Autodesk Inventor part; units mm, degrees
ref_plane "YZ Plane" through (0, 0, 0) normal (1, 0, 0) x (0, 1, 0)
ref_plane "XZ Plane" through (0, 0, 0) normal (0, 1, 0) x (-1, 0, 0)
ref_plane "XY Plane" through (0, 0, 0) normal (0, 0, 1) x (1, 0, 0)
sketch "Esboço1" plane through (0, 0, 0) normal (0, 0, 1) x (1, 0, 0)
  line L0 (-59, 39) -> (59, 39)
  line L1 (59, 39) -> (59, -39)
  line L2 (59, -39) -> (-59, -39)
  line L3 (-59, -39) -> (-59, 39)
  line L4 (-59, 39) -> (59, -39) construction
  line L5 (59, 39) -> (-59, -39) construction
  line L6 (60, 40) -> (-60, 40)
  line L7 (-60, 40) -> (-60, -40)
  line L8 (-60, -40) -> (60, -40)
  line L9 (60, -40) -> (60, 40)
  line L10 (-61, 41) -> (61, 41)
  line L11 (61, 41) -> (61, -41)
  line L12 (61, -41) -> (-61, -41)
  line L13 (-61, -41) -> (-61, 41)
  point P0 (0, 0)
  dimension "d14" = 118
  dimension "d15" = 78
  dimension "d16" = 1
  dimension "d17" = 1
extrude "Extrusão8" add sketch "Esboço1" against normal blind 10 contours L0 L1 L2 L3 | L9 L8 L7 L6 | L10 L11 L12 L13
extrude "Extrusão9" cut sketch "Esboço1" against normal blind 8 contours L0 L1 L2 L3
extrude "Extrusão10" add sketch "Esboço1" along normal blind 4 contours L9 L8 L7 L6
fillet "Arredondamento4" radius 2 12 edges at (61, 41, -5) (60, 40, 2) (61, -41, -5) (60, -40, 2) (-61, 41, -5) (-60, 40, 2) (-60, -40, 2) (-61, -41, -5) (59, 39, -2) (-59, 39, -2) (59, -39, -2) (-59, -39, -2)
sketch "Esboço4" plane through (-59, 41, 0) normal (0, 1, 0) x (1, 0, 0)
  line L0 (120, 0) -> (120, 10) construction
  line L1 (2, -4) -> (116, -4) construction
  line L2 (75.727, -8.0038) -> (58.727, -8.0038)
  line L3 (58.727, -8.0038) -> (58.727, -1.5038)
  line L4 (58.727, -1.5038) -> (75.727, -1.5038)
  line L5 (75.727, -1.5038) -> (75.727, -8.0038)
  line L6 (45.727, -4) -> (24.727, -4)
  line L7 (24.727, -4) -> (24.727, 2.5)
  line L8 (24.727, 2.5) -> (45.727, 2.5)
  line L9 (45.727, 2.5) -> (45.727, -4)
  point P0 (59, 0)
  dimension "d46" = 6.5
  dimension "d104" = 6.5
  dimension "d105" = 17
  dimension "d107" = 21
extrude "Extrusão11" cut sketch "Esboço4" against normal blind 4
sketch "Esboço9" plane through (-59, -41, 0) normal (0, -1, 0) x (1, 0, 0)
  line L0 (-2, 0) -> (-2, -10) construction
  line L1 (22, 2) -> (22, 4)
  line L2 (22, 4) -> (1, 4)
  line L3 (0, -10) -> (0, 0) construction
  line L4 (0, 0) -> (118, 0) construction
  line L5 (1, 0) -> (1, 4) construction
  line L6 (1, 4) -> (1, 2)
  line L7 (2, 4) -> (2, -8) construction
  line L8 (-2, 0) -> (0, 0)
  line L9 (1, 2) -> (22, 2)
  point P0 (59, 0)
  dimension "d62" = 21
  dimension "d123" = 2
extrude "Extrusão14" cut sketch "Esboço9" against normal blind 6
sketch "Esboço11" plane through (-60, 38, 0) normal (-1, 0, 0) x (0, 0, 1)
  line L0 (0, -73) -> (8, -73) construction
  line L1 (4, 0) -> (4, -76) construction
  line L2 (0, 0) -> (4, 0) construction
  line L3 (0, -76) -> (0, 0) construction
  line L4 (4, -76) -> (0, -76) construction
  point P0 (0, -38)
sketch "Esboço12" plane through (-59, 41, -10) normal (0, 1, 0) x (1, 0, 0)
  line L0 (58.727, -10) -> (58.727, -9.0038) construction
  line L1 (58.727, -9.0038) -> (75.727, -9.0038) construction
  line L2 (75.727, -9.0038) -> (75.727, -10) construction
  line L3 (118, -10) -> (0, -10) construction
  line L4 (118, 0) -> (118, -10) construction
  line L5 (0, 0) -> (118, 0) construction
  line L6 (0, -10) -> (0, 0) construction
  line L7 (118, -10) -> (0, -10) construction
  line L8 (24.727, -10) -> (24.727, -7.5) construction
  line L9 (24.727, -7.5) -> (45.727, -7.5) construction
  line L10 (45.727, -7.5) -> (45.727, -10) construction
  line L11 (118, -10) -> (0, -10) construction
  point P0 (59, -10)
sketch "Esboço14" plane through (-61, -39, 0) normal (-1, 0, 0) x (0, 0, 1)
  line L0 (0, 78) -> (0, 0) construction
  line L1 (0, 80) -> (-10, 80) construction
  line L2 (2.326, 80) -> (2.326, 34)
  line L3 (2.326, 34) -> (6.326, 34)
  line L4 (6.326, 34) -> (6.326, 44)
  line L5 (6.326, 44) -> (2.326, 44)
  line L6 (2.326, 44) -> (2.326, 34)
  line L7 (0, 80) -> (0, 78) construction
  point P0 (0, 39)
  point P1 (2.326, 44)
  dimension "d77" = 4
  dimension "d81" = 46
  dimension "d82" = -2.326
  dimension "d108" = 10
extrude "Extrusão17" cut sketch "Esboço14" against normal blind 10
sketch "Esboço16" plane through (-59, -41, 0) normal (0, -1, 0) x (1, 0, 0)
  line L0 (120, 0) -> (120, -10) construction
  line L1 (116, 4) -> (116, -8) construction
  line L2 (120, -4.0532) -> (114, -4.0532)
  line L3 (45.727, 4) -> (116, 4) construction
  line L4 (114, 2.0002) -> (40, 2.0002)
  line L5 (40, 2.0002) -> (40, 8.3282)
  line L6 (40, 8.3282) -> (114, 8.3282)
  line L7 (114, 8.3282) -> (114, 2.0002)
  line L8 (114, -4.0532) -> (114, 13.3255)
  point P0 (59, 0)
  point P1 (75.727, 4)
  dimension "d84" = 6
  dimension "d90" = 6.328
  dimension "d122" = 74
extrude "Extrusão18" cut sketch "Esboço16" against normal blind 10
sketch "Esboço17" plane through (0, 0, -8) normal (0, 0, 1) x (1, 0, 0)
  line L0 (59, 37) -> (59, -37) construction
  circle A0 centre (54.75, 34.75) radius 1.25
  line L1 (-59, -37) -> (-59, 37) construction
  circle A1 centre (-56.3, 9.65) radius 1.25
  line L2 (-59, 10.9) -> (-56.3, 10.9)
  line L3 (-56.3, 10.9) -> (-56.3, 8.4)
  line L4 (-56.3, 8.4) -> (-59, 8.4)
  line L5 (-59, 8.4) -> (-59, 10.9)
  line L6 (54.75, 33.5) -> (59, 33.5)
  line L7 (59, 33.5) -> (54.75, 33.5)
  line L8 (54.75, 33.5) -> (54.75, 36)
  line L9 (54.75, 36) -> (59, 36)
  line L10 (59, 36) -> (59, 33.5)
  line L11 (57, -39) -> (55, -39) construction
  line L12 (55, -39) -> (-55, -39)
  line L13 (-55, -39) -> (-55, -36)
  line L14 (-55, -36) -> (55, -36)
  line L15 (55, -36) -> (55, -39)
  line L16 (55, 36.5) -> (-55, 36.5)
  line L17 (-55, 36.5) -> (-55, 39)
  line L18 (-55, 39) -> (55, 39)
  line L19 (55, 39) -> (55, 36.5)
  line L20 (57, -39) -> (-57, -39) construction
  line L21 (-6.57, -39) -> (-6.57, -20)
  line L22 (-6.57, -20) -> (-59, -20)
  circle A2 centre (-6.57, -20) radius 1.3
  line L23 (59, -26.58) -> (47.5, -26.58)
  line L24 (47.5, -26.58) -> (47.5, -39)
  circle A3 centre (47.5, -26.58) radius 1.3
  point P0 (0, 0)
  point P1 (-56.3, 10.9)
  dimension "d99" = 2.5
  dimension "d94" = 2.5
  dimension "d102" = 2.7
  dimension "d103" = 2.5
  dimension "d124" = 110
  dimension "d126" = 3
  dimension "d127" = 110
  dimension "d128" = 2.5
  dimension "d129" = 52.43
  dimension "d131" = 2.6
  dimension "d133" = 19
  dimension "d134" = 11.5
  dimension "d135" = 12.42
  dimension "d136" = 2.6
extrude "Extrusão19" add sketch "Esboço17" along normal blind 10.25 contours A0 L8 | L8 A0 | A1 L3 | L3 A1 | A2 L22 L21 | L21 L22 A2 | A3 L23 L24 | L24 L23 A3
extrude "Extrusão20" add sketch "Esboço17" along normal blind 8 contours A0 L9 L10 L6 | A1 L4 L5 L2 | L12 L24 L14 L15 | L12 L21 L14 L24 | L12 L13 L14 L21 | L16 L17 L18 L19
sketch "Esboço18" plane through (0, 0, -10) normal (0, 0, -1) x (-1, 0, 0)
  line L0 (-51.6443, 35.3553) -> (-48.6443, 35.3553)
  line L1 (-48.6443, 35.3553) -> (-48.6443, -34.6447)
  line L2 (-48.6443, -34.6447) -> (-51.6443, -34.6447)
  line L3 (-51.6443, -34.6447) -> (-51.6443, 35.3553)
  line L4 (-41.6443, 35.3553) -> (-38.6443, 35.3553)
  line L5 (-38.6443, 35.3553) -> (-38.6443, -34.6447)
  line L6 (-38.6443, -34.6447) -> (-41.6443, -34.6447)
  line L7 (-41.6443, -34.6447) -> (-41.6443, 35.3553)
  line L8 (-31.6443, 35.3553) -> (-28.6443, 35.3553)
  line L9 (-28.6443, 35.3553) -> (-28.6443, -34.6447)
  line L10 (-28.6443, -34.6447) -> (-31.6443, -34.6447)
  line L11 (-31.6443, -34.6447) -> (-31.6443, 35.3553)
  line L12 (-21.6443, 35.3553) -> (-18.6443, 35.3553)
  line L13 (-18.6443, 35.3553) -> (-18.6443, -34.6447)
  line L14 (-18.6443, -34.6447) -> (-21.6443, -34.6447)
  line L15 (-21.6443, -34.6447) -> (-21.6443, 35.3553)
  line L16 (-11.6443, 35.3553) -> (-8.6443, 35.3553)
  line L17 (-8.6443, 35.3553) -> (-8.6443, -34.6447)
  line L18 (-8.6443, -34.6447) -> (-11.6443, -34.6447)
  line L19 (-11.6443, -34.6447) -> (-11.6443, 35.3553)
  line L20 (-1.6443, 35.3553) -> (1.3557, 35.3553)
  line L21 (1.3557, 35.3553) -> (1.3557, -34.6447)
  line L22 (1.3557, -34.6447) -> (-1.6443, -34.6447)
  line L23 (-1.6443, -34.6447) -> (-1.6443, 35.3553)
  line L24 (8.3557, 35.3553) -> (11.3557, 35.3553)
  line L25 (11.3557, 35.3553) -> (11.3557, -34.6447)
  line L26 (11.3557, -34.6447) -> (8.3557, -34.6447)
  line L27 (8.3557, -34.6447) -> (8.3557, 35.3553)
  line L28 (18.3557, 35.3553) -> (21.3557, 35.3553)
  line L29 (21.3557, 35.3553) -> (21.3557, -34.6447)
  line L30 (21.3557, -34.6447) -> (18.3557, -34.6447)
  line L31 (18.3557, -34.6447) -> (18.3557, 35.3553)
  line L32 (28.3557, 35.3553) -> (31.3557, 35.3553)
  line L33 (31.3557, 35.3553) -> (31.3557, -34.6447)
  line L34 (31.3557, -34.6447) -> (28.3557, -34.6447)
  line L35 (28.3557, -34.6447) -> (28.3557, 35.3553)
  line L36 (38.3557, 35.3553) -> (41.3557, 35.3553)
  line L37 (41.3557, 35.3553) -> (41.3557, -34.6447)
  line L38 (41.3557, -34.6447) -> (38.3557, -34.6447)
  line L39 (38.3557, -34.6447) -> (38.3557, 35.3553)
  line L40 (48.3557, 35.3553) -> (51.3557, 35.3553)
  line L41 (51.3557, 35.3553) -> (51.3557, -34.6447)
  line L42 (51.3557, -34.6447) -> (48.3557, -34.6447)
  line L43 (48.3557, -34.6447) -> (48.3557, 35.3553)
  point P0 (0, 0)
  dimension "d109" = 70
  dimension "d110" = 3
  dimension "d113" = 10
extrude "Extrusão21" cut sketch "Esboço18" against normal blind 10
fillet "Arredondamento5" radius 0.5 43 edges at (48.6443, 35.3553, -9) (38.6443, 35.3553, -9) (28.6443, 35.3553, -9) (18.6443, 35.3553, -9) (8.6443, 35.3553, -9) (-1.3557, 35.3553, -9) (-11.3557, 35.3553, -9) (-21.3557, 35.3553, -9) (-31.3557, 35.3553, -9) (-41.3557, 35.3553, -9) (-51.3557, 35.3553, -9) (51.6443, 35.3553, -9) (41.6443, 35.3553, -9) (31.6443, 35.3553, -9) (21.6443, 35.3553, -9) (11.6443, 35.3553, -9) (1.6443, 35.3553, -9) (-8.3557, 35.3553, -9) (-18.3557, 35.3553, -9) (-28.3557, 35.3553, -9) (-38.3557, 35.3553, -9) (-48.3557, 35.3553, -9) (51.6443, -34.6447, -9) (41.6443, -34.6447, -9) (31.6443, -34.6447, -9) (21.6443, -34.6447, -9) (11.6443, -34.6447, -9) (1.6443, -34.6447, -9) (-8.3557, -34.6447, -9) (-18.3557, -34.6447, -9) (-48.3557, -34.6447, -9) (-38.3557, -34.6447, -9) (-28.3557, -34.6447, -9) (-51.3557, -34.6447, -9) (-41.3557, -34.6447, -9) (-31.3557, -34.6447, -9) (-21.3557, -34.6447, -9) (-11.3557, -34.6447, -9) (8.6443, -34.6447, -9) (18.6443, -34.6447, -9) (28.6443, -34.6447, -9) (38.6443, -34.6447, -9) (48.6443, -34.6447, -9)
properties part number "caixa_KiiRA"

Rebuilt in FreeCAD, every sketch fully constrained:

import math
import FreeCAD as App
import Part
import Sketcher

V = App.Vector


def edges_at(feature, points):
    """Names of the edges that pass closest to the given points."""
    edges = feature.Shape.Edges
    near = lambda p: min(range(len(edges)), key=lambda i: edges[i].distToShape(Part.Vertex(*p))[0])
    return sorted({f"Edge{near(p) + 1}" for p in points})


def add_polygon(sketch, points):
    """Adds a closed chain of lines whose ends are joined by coincident constraints."""
    first, n = sketch.GeometryCount, len(points)
    for a, b in zip(points, points[1:] + points[:1]):
        sketch.addGeometry(Part.LineSegment(App.Vector(*a, 0), App.Vector(*b, 0)), False)
    for i in range(n):
        sketch.addConstraint(Sketcher.Constraint("Coincident", first + i, 2, first + (i + 1) % n, 1))

doc = App.newDocument("Part")
body = doc.addObject("PartDesign::Body", "Body")

sketch1 = body.newObject("Sketcher::SketchObject", "Sketch")
sketch1.AttachmentSupport = (doc.getObject("XY_Plane"), [""])
sketch1.MapMode = "FlatFace"
add_polygon(sketch1, [(61, 41), (-61, 41), (-61, -41), (61, -41)])
sketch1.addConstraint(Sketcher.Constraint("Horizontal", 0))
sketch1.addConstraint(Sketcher.Constraint("Vertical", 1))
sketch1.addConstraint(Sketcher.Constraint("Horizontal", 2))
sketch1.addConstraint(Sketcher.Constraint("Vertical", 3))
sketch1.addConstraint(Sketcher.Constraint("Symmetric", 0, 2, 2, 2, -1, 1))
sketch1.addConstraint(Sketcher.Constraint("DistanceX", 0, 2, 0, 1, 122.0))
sketch1.addConstraint(Sketcher.Constraint("DistanceY", 1, 2, 1, 1, 82.0))
pad1 = body.newObject("PartDesign::Pad", "Pad")
pad1.Profile = sketch1
pad1.Length = 10
pad1.Reversed = True

sketch2 = body.newObject("Sketcher::SketchObject", "Sketch001")
sketch2.AttachmentSupport = (doc.getObject("XY_Plane"), [""])
sketch2.MapMode = "FlatFace"
add_polygon(sketch2, [(59, 39), (-59, 39), (-59, -39), (59, -39)])
sketch2.addConstraint(Sketcher.Constraint("Horizontal", 0))
sketch2.addConstraint(Sketcher.Constraint("Vertical", 1))
sketch2.addConstraint(Sketcher.Constraint("Horizontal", 2))
sketch2.addConstraint(Sketcher.Constraint("Vertical", 3))
sketch2.addConstraint(Sketcher.Constraint("Symmetric", 0, 2, 2, 2, -1, 1))
sketch2.addConstraint(Sketcher.Constraint("DistanceX", 0, 2, 0, 1, 118.0))
sketch2.addConstraint(Sketcher.Constraint("DistanceY", 1, 2, 1, 1, 78.0))
pocket1 = body.newObject("PartDesign::Pocket", "Pocket")
pocket1.Profile = sketch2
pocket1.Length = 8

sketch3 = body.newObject("Sketcher::SketchObject", "Sketch002")
sketch3.AttachmentSupport = (doc.getObject("XY_Plane"), [""])
sketch3.MapMode = "FlatFace"
add_polygon(sketch3, [(60, -40), (60, 40), (-60, 40), (-60, -40)])
add_polygon(sketch3, [(-59, -39), (-59, 39), (59, 39), (59, -39)])
sketch3.addConstraint(Sketcher.Constraint("Vertical", 0))
sketch3.addConstraint(Sketcher.Constraint("Horizontal", 1))
sketch3.addConstraint(Sketcher.Constraint("Vertical", 2))
sketch3.addConstraint(Sketcher.Constraint("Horizontal", 3))
sketch3.addConstraint(Sketcher.Constraint("Vertical", 4))
sketch3.addConstraint(Sketcher.Constraint("Horizontal", 5))
sketch3.addConstraint(Sketcher.Constraint("Vertical", 6))
sketch3.addConstraint(Sketcher.Constraint("Horizontal", 7))
sketch3.addConstraint(Sketcher.Constraint("Symmetric", 0, 2, 2, 2, -1, 1))
sketch3.addConstraint(Sketcher.Constraint("Symmetric", 4, 2, 6, 2, -1, 1))
sketch3.addConstraint(Sketcher.Constraint("DistanceX", 5, 1, 5, 2, 118.0))
sketch3.addConstraint(Sketcher.Constraint("DistanceY", 4, 1, 4, 2, 78.0))
sketch3.addConstraint(Sketcher.Constraint("DistanceX", 1, 2, 4, 2, 1.0))
sketch3.addConstraint(Sketcher.Constraint("DistanceY", 4, 2, 1, 2, 1.0))
pad2 = body.newObject("PartDesign::Pad", "Pad001")
pad2.Profile = sketch3
pad2.Length = 4
doc.recompute()

fillet = body.newObject("PartDesign::Fillet", "Fillet")
fillet.Base = (pad2, edges_at(pad2, [
    (61, 41, -5),
    (60, 40, 2),
    (61, -41, -5),
    (60, -40, 2),
    (-61, 41, -5),
    (-60, 40, 2),
    (-60, -40, 2),
    (-61, -41, -5),
    (59, 39, -2),
    (-59, 39, -2),
    (59, -39, -2),
    (-59, -39, -2),
]))
fillet.Radius = 2

sketch4 = body.newObject("Sketcher::SketchObject", "Sketch003")
sketch4.AttachmentSupport = (doc.getObject("XZ_Plane"), [""])
sketch4.MapMode = "FlatFace"
sketch4.AttachmentOffset = App.Placement(V(0, 0, -41), App.Rotation())
add_polygon(sketch4, [(0, 8), (17, 8), (17, 2), (0, 2)])
add_polygon(sketch4, [(-34, 4), (-13, 4), (-13, -2), (-34, -2)])
sketch4.addConstraint(Sketcher.Constraint("Horizontal", 0))
sketch4.addConstraint(Sketcher.Constraint("Vertical", 1))
sketch4.addConstraint(Sketcher.Constraint("Horizontal", 2))
sketch4.addConstraint(Sketcher.Constraint("Vertical", 3))
sketch4.addConstraint(Sketcher.Constraint("Horizontal", 4))
sketch4.addConstraint(Sketcher.Constraint("Vertical", 5))
sketch4.addConstraint(Sketcher.Constraint("Horizontal", 6))
sketch4.addConstraint(Sketcher.Constraint("Vertical", 7))
sketch4.addConstraint(Sketcher.Constraint("Equal", 3, 5))
sketch4.addConstraint(Sketcher.Constraint("DistanceX", 0, 1, 0, 2, 17.0))
sketch4.addConstraint(Sketcher.Constraint("DistanceX", 4, 1, 4, 2, 21.0))
sketch4.addConstraint(Sketcher.Constraint("DistanceY", 1, 2, 1, 1, 6.5))
sketch4.addConstraint(Sketcher.Constraint("DistanceY", -1, 1, 4, 2, 4.0))
sketch4.addConstraint(Sketcher.Constraint("DistanceX", 4, 2, 2, 2, 13.0))
sketch4.addConstraint(Sketcher.Constraint("DistanceX", -1, 1, 0, 2, 16.727))
sketch4.addConstraint(Sketcher.Constraint("DistanceY", -1, 1, 0, 2, 8.0038))
pocket2 = body.newObject("PartDesign::Pocket", "Pocket001")
pocket2.Profile = sketch4
pocket2.Length = 4
pocket2.Reversed = True

sketch5 = body.newObject("Sketcher::SketchObject", "Sketch004")
sketch5.AttachmentSupport = (doc.getObject("XZ_Plane"), [""])
sketch5.MapMode = "FlatFace"
sketch5.AttachmentOffset = App.Placement(V(0, 0, 41), App.Rotation())
add_polygon(sketch5, [(-58, 2), (-37, 2), (-37, 4), (-58, 4)])
sketch5.addConstraint(Sketcher.Constraint("Horizontal", 0))
sketch5.addConstraint(Sketcher.Constraint("Vertical", 1))
sketch5.addConstraint(Sketcher.Constraint("Horizontal", 2))
sketch5.addConstraint(Sketcher.Constraint("Vertical", 3))
sketch5.addConstraint(Sketcher.Constraint("DistanceX", 0, 1, 0, 2, 21.0))
sketch5.addConstraint(Sketcher.Constraint("DistanceY", 1, 1, 1, 2, 2.0))
sketch5.addConstraint(Sketcher.Constraint("DistanceY", -1, 1, 0, 2, 2.0))
sketch5.addConstraint(Sketcher.Constraint("DistanceX", 0, 2, -1, 1, 37.0))
pocket3 = body.newObject("PartDesign::Pocket", "Pocket002")
pocket3.Profile = sketch5
pocket3.Length = 6

sketch6 = body.newObject("Sketcher::SketchObject", "Sketch005")
sketch6.AttachmentSupport = (doc.getObject("YZ_Plane"), [""])
sketch6.MapMode = "FlatFace"
sketch6.AttachmentOffset = App.Placement(V(0, 0, -61), App.Rotation())
add_polygon(sketch6, [(5, 6.3), (5, 2.3), (-5, 2.3), (-5, 6.3)])
sketch6.addConstraint(Sketcher.Constraint("Vertical", 0))
sketch6.addConstraint(Sketcher.Constraint("Horizontal", 1))
sketch6.addConstraint(Sketcher.Constraint("Vertical", 2))
sketch6.addConstraint(Sketcher.Constraint("Horizontal", 3))
sketch6.addConstraint(Sketcher.Constraint("DistanceX", 1, 2, 1, 1, 10.0))
sketch6.addConstraint(Sketcher.Constraint("DistanceY", 0, 2, 0, 1, 4.0))
sketch6.addConstraint(Sketcher.Constraint("DistanceY", -1, 1, 0, 2, 2.326))
sketch6.addConstraint(Sketcher.Constraint("DistanceX", -1, 1, 0, 2, 5.0))
pocket4 = body.newObject("PartDesign::Pocket", "Pocket003")
pocket4.Profile = sketch6
pocket4.Length = 10
pocket4.Reversed = True

sketch7 = body.newObject("Sketcher::SketchObject", "Sketch006")
sketch7.AttachmentSupport = (doc.getObject("XZ_Plane"), [""])
sketch7.MapMode = "FlatFace"
sketch7.AttachmentOffset = App.Placement(V(0, 0, 41), App.Rotation())
add_polygon(sketch7, [(-19, 2), (55, 2), (55, 8), (-19, 8)])
sketch7.addConstraint(Sketcher.Constraint("Horizontal", 0))
sketch7.addConstraint(Sketcher.Constraint("Vertical", 1))
sketch7.addConstraint(Sketcher.Constraint("Horizontal", 2))
sketch7.addConstraint(Sketcher.Constraint("Vertical", 3))
sketch7.addConstraint(Sketcher.Constraint("DistanceX", 0, 1, 0, 2, 74.0))
sketch7.addConstraint(Sketcher.Constraint("DistanceY", 1, 1, 1, 2, 6.328))
sketch7.addConstraint(Sketcher.Constraint("DistanceX", -1, 1, 0, 2, 55.0))
sketch7.addConstraint(Sketcher.Constraint("DistanceY", -1, 1, 0, 2, 2.0002))
pocket5 = body.newObject("PartDesign::Pocket", "Pocket004")
pocket5.Profile = sketch7
pocket5.Length = 10

sketch8 = body.newObject("Sketcher::SketchObject", "Sketch007")
sketch8.AttachmentSupport = (doc.getObject("XY_Plane"), [""])
sketch8.MapMode = "FlatFace"
sketch8.AttachmentOffset = App.Placement(V(0, 0, -8), App.Rotation())
sketch8.addGeometry(Part.Circle(V(54.8, 34.8, 0), V(0, 0, 1), 1.2), False)
sketch8.addGeometry(Part.Circle(V(-56.3, 9.7, 0), V(0, 0, 1), 1.2), False)
sketch8.addGeometry(Part.Circle(V(-6.6, -20, 0), V(0, 0, 1), 1.3), False)
sketch8.addGeometry(Part.Circle(V(47.5, -26.6, 0), V(0, 0, 1), 1.3), False)
sketch8.addConstraint(Sketcher.Constraint("Equal", 0, 1))
sketch8.addConstraint(Sketcher.Constraint("Equal", 2, 3))
sketch8.addConstraint(Sketcher.Constraint("Diameter", 0, 2.5))
sketch8.addConstraint(Sketcher.Constraint("Diameter", 2, 2.6))
sketch8.addConstraint(Sketcher.Constraint("DistanceY", 2, 3, -1, 1, 20.0))
sketch8.addConstraint(Sketcher.Constraint("DistanceX", 1, 3, -1, 1, 56.3))
sketch8.addConstraint(Sketcher.Constraint("DistanceX", -1, 1, 3, 3, 47.5))
sketch8.addConstraint(Sketcher.Constraint("DistanceY", 1, 3, 0, 3, 25.1))
sketch8.addConstraint(Sketcher.Constraint("DistanceX", -1, 1, 0, 3, 54.75))
sketch8.addConstraint(Sketcher.Constraint("DistanceY", -1, 1, 0, 3, 34.75))
sketch8.addConstraint(Sketcher.Constraint("DistanceX", 2, 3, -1, 1, 6.57))
sketch8.addConstraint(Sketcher.Constraint("DistanceY", 3, 3, -1, 1, 26.58))
pad3 = body.newObject("PartDesign::Pad", "Pad002")
pad3.Profile = sketch8
pad3.Length = 10.25

sketch9 = body.newObject("Sketcher::SketchObject", "Sketch008")
sketch9.AttachmentSupport = (doc.getObject("XY_Plane"), [""])
sketch9.MapMode = "FlatFace"
sketch9.AttachmentOffset = App.Placement(V(0, 0, -8), App.Rotation())
sketch9.addGeometry(Part.ArcOfCircle(Part.Circle(V(54.8, 34.8, 0), V(0, 0, 1), 1.2), math.radians(-90), math.radians(90)), False)
sketch9.addGeometry(Part.LineSegment(V(54.8, 33.5, 0), V(59, 33.5, 0)), False)
sketch9.addGeometry(Part.LineSegment(V(59, 33.5, 0), V(59, 36, 0)), False)
sketch9.addGeometry(Part.LineSegment(V(59, 36, 0), V(54.8, 36, 0)), False)
sketch9.addGeometry(Part.ArcOfCircle(Part.Circle(V(-56.3, 9.7, 0), V(0, 0, 1), 1.2), math.radians(90), math.radians(270)), False)
sketch9.addGeometry(Part.LineSegment(V(-56.3, 10.9, 0), V(-59, 10.9, 0)), False)
sketch9.addGeometry(Part.LineSegment(V(-59, 10.9, 0), V(-59, 8.4, 0)), False)
sketch9.addGeometry(Part.LineSegment(V(-59, 8.4, 0), V(-56.3, 8.4, 0)), False)
add_polygon(sketch9, [(55, -39), (55, -36), (-55, -36), (-55, -39)])
add_polygon(sketch9, [(-55, 36.5), (55, 36.5), (55, 39), (-55, 39)])
sketch9.addConstraint(Sketcher.Constraint("Tangent", 0, 1, 1, 1))
sketch9.addConstraint(Sketcher.Constraint("Coincident", 1, 2, 2, 1))
sketch9.addConstraint(Sketcher.Constraint("Coincident", 2, 2, 3, 1))
sketch9.addConstraint(Sketcher.Constraint("Tangent", 3, 2, 0, 2))
sketch9.addConstraint(Sketcher.Constraint("Tangent", 4, 1, 5, 1))
sketch9.addConstraint(Sketcher.Constraint("Coincident", 5, 2, 6, 1))
sketch9.addConstraint(Sketcher.Constraint("Coincident", 6, 2, 7, 1))
sketch9.addConstraint(Sketcher.Constraint("Tangent", 7, 2, 4, 2))
sketch9.addConstraint(Sketcher.Constraint("Horizontal", 1))
sketch9.addConstraint(Sketcher.Constraint("Vertical", 2))
sketch9.addConstraint(Sketcher.Constraint("Horizontal", 3))
sketch9.addConstraint(Sketcher.Constraint("Horizontal", 5))
sketch9.addConstraint(Sketcher.Constraint("Vertical", 6))
sketch9.addConstraint(Sketcher.Constraint("Horizontal", 7))
sketch9.addConstraint(Sketcher.Constraint("Vertical", 8))
sketch9.addConstraint(Sketcher.Constraint("Horizontal", 9))
sketch9.addConstraint(Sketcher.Constraint("Vertical", 10))
sketch9.addConstraint(Sketcher.Constraint("Horizontal", 11))
sketch9.addConstraint(Sketcher.Constraint("Horizontal", 12))
sketch9.addConstraint(Sketcher.Constraint("Vertical", 13))
sketch9.addConstraint(Sketcher.Constraint("Horizontal", 14))
sketch9.addConstraint(Sketcher.Constraint("Vertical", 15))
sketch9.addConstraint(Sketcher.Constraint("Equal", 0, 4))
sketch9.addConstraint(Sketcher.Constraint("Symmetric", 10, 2, 13, 2, -1, 1))
sketch9.addConstraint(Sketcher.Constraint("Vertical", 11, 2, 12, 2))
sketch9.addConstraint(Sketcher.Constraint("Vertical", 10, 2, 14, 2))
sketch9.addConstraint(Sketcher.Constraint("Equal", 6, 13))
sketch9.addConstraint(Sketcher.Constraint("DistanceX", 9, 2, 9, 1, 110.0))
sketch9.addConstraint(Sketcher.Constraint("DistanceY", 8, 1, 8, 2, 3.0))
sketch9.addConstraint(Sketcher.Constraint("Radius", 0, 1.25))
sketch9.addConstraint(Sketcher.Constraint("DistanceX", 5, 2, 5, 1, 2.7))
sketch9.addConstraint(Sketcher.Constraint("DistanceY", 0, 1, 12, 2, 3.0))
sketch9.addConstraint(Sketcher.Constraint("DistanceX", -1, 1, 1, 2, 59.0))
sketch9.addConstraint(Sketcher.Constraint("DistanceY", -1, 1, 2, 2, 36.0))
sketch9.addConstraint(Sketcher.Constraint("DistanceX", 5, 2, -1, 1, 59.0))
sketch9.addConstraint(Sketcher.Constraint("DistanceX", 1, 1, 1, 2, 4.25))
sketch9.addConstraint(Sketcher.Constraint("DistanceY", -1, 1, 4, 1, 10.9))
pad4 = body.newObject("PartDesign::Pad", "Pad003")
pad4.Profile = sketch9
pad4.Length = 8

sketch10 = body.newObject("Sketcher::SketchObject", "Sketch009")
sketch10.AttachmentSupport = (doc.getObject("XY_Plane"), [""])
sketch10.MapMode = "FlatFace"
sketch10.AttachmentOffset = App.Placement(V(0, 0, -10), App.Rotation())
add_polygon(sketch10, [(48.6, 35.4), (51.6, 35.4), (51.6, -34.6), (48.6, -34.6)])
add_polygon(sketch10, [(38.6, 35.4), (41.6, 35.4), (41.6, -34.6), (38.6, -34.6)])
add_polygon(sketch10, [(28.6, 35.4), (31.6, 35.4), (31.6, -34.6), (28.6, -34.6)])
add_polygon(sketch10, [(18.6, 35.4), (21.6, 35.4), (21.6, -34.6), (18.6, -34.6)])
add_polygon(sketch10, [(8.6, 35.4), (11.6, 35.4), (11.6, -34.6), (8.6, -34.6)])
add_polygon(sketch10, [(-1.4, 35.4), (1.6, 35.4), (1.6, -34.6), (-1.4, -34.6)])
add_polygon(sketch10, [(-11.4, 35.4), (-8.4, 35.4), (-8.4, -34.6), (-11.4, -34.6)])
add_polygon(sketch10, [(-21.4, 35.4), (-18.4, 35.4), (-18.4, -34.6), (-21.4, -34.6)])
add_polygon(sketch10, [(-31.4, 35.4), (-28.4, 35.4), (-28.4, -34.6), (-31.4, -34.6)])
add_polygon(sketch10, [(-41.4, 35.4), (-38.4, 35.4), (-38.4, -34.6), (-41.4, -34.6)])
add_polygon(sketch10, [(-51.4, 35.4), (-48.4, 35.4), (-48.4, -34.6), (-51.4, -34.6)])
sketch10.addConstraint(Sketcher.Constraint("Horizontal", 0))
sketch10.addConstraint(Sketcher.Constraint("Vertical", 1))
sketch10.addConstraint(Sketcher.Constraint("Horizontal", 2))
sketch10.addConstraint(Sketcher.Constraint("Vertical", 3))
sketch10.addConstraint(Sketcher.Constraint("Horizontal", 4))
sketch10.addConstraint(Sketcher.Constraint("Vertical", 5))
sketch10.addConstraint(Sketcher.Constraint("Horizontal", 6))
sketch10.addConstraint(Sketcher.Constraint("Vertical", 7))
sketch10.addConstraint(Sketcher.Constraint("Horizontal", 8))
sketch10.addConstraint(Sketcher.Constraint("Vertical", 9))
sketch10.addConstraint(Sketcher.Constraint("Horizontal", 10))
sketch10.addConstraint(Sketcher.Constraint("Vertical", 11))
sketch10.addConstraint(Sketcher.Constraint("Horizontal", 12))
sketch10.addConstraint(Sketcher.Constraint("Vertical", 13))
sketch10.addConstraint(Sketcher.Constraint("Horizontal", 14))
sketch10.addConstraint(Sketcher.Constraint("Vertical", 15))
sketch10.addConstraint(Sketcher.Constraint("Horizontal", 16))
sketch10.addConstraint(Sketcher.Constraint("Vertical", 17))
sketch10.addConstraint(Sketcher.Constraint("Horizontal", 18))
sketch10.addConstraint(Sketcher.Constraint("Vertical", 19))
sketch10.addConstraint(Sketcher.Constraint("Horizontal", 20))
sketch10.addConstraint(Sketcher.Constraint("Vertical", 21))
sketch10.addConstraint(Sketcher.Constraint("Horizontal", 22))
sketch10.addConstraint(Sketcher.Constraint("Vertical", 23))
sketch10.addConstraint(Sketcher.Constraint("Horizontal", 24))
sketch10.addConstraint(Sketcher.Constraint("Vertical", 25))
sketch10.addConstraint(Sketcher.Constraint("Horizontal", 26))
sketch10.addConstraint(Sketcher.Constraint("Vertical", 27))
sketch10.addConstraint(Sketcher.Constraint("Horizontal", 28))
sketch10.addConstraint(Sketcher.Constraint("Vertical", 29))
sketch10.addConstraint(Sketcher.Constraint("Horizontal", 30))
sketch10.addConstraint(Sketcher.Constraint("Vertical", 31))
sketch10.addConstraint(Sketcher.Constraint("Horizontal", 32))
sketch10.addConstraint(Sketcher.Constraint("Vertical", 33))
sketch10.addConstraint(Sketcher.Constraint("Horizontal", 34))
sketch10.addConstraint(Sketcher.Constraint("Vertical", 35))
sketch10.addConstraint(Sketcher.Constraint("Horizontal", 36))
sketch10.addConstraint(Sketcher.Constraint("Vertical", 37))
sketch10.addConstraint(Sketcher.Constraint("Horizontal", 38))
sketch10.addConstraint(Sketcher.Constraint("Vertical", 39))
sketch10.addConstraint(Sketcher.Constraint("Horizontal", 40))
sketch10.addConstraint(Sketcher.Constraint("Vertical", 41))
sketch10.addConstraint(Sketcher.Constraint("Horizontal", 42))
sketch10.addConstraint(Sketcher.Constraint("Vertical", 43))
sketch10.addConstraint(Sketcher.Constraint("Horizontal", 3, 2, 4, 2))
sketch10.addConstraint(Sketcher.Constraint("Horizontal", 2, 2, 5, 2))
sketch10.addConstraint(Sketcher.Constraint("Horizontal", 7, 2, 8, 2))
sketch10.addConstraint(Sketcher.Constraint("Horizontal", 6, 2, 9, 2))
sketch10.addConstraint(Sketcher.Constraint("Horizontal", 11, 2, 12, 2))
sketch10.addConstraint(Sketcher.Constraint("Horizontal", 10, 2, 13, 2))
sketch10.addConstraint(Sketcher.Constraint("Horizontal", 15, 2, 16, 2))
sketch10.addConstraint(Sketcher.Constraint("Horizontal", 14, 2, 17, 2))
sketch10.addConstraint(Sketcher.Constraint("Horizontal", 19, 2, 20, 2))
sketch10.addConstraint(Sketcher.Constraint("Horizontal", 18, 2, 21, 2))
sketch10.addConstraint(Sketcher.Constraint("Horizontal", 23, 2, 24, 2))
sketch10.addConstraint(Sketcher.Constraint("Horizontal", 22, 2, 25, 2))
sketch10.addConstraint(Sketcher.Constraint("Horizontal", 27, 2, 28, 2))
sketch10.addConstraint(Sketcher.Constraint("Horizontal", 26, 2, 29, 2))
sketch10.addConstraint(Sketcher.Constraint("Horizontal", 31, 2, 32, 2))
sketch10.addConstraint(Sketcher.Constraint("Horizontal", 30, 2, 33, 2))
sketch10.addConstraint(Sketcher.Constraint("Horizontal", 35, 2, 36, 2))
sketch10.addConstraint(Sketcher.Constraint("Horizontal", 34, 2, 37, 2))
sketch10.addConstraint(Sketcher.Constraint("Horizontal", 39, 2, 40, 2))
sketch10.addConstraint(Sketcher.Constraint("Horizontal", 38, 2, 41, 2))
sketch10.addConstraint(Sketcher.Constraint("Equal", 2, 4))
sketch10.addConstraint(Sketcher.Constraint("Equal", 6, 8))
sketch10.addConstraint(Sketcher.Constraint("Equal", 10, 12))
sketch10.addConstraint(Sketcher.Constraint("Equal", 14, 16))
sketch10.addConstraint(Sketcher.Constraint("Equal", 18, 20))
sketch10.addConstraint(Sketcher.Constraint("Equal", 22, 24))
sketch10.addConstraint(Sketcher.Constraint("Equal", 26, 28))
sketch10.addConstraint(Sketcher.Constraint("Equal", 30, 32))
sketch10.addConstraint(Sketcher.Constraint("Equal", 34, 36))
sketch10.addConstraint(Sketcher.Constraint("Equal", 38, 40))
sketch10.addConstraint(Sketcher.Constraint("DistanceX", 0, 1, 0, 2, 3.0))
sketch10.addConstraint(Sketcher.Constraint("DistanceY", 1, 2, 1, 1, 70.0))
sketch10.addConstraint(Sketcher.Constraint("DistanceX", 4, 2, 0, 2, 10.0))
sketch10.addConstraint(Sketcher.Constraint("DistanceX", 8, 2, 4, 2, 10.0))
sketch10.addConstraint(Sketcher.Constraint("DistanceX", 12, 2, 8, 2, 10.0))
sketch10.addConstraint(Sketcher.Constraint("DistanceX", 16, 2, 12, 2, 10.0))
sketch10.addConstraint(Sketcher.Constraint("DistanceX", 20, 2, 16, 2, 10.0))
sketch10.addConstraint(Sketcher.Constraint("DistanceX", 24, 2, 20, 2, 10.0))
sketch10.addConstraint(Sketcher.Constraint("DistanceX", 28, 2, 24, 2, 10.0))
sketch10.addConstraint(Sketcher.Constraint("DistanceX", 32, 2, 28, 2, 10.0))
sketch10.addConstraint(Sketcher.Constraint("DistanceX", 36, 2, 32, 2, 10.0))
sketch10.addConstraint(Sketcher.Constraint("DistanceX", 40, 2, 36, 2, 10.0))
sketch10.addConstraint(Sketcher.Constraint("DistanceX", -1, 1, 0, 2, 51.6443))
sketch10.addConstraint(Sketcher.Constraint("DistanceY", -1, 1, 0, 2, 35.3553))
pocket6 = body.newObject("PartDesign::Pocket", "Pocket005")
pocket6.Profile = sketch10
pocket6.Length = 10
pocket6.Reversed = True
doc.recompute()

fillet2 = body.newObject("PartDesign::Fillet", "Fillet001")
fillet2.Base = (pocket6, edges_at(pocket6, [
    (48.644, 35.355, -9),
    (38.644, 35.355, -9),
    (28.644, 35.355, -9),
    (18.644, 35.355, -9),
    (8.644, 35.355, -9),
    (-1.356, 35.355, -9),
    (-11.356, 35.355, -9),
    (-21.356, 35.355, -9),
    (-31.356, 35.355, -9),
    (-41.356, 35.355, -9),
    (-51.356, 35.355, -9),
    (51.644, 35.355, -9),
    (41.644, 35.355, -9),
    (31.644, 35.355, -9),
    (21.644, 35.355, -9),
    (11.644, 35.355, -9),
    (1.644, 35.355, -9),
    (-8.356, 35.355, -9),
    (-18.356, 35.355, -9),
    (-28.356, 35.355, -9),
    (-38.356, 35.355, -9),
    (-48.356, 35.355, -9),
    (51.644, -34.645, -9),
    (41.644, -34.645, -9),
    (31.644, -34.645, -9),
    (21.644, -34.645, -9),
    (11.644, -34.645, -9),
    (1.644, -34.645, -9),
    (-8.356, -34.645, -9),
    (-18.356, -34.645, -9),
    (-48.356, -34.645, -9),
    (-38.356, -34.645, -9),
    (-28.356, -34.645, -9),
    (-51.356, -34.645, -9),
    (-41.356, -34.645, -9),
    (-31.356, -34.645, -9),
    (-21.356, -34.645, -9),
    (-11.356, -34.645, -9),
    (8.644, -34.645, -9),
    (18.644, -34.645, -9),
    (28.644, -34.645, -9),
    (38.644, -34.645, -9),
    (48.644, -34.645, -9),
]))
fillet2.Radius = 0.5

doc.recompute()
